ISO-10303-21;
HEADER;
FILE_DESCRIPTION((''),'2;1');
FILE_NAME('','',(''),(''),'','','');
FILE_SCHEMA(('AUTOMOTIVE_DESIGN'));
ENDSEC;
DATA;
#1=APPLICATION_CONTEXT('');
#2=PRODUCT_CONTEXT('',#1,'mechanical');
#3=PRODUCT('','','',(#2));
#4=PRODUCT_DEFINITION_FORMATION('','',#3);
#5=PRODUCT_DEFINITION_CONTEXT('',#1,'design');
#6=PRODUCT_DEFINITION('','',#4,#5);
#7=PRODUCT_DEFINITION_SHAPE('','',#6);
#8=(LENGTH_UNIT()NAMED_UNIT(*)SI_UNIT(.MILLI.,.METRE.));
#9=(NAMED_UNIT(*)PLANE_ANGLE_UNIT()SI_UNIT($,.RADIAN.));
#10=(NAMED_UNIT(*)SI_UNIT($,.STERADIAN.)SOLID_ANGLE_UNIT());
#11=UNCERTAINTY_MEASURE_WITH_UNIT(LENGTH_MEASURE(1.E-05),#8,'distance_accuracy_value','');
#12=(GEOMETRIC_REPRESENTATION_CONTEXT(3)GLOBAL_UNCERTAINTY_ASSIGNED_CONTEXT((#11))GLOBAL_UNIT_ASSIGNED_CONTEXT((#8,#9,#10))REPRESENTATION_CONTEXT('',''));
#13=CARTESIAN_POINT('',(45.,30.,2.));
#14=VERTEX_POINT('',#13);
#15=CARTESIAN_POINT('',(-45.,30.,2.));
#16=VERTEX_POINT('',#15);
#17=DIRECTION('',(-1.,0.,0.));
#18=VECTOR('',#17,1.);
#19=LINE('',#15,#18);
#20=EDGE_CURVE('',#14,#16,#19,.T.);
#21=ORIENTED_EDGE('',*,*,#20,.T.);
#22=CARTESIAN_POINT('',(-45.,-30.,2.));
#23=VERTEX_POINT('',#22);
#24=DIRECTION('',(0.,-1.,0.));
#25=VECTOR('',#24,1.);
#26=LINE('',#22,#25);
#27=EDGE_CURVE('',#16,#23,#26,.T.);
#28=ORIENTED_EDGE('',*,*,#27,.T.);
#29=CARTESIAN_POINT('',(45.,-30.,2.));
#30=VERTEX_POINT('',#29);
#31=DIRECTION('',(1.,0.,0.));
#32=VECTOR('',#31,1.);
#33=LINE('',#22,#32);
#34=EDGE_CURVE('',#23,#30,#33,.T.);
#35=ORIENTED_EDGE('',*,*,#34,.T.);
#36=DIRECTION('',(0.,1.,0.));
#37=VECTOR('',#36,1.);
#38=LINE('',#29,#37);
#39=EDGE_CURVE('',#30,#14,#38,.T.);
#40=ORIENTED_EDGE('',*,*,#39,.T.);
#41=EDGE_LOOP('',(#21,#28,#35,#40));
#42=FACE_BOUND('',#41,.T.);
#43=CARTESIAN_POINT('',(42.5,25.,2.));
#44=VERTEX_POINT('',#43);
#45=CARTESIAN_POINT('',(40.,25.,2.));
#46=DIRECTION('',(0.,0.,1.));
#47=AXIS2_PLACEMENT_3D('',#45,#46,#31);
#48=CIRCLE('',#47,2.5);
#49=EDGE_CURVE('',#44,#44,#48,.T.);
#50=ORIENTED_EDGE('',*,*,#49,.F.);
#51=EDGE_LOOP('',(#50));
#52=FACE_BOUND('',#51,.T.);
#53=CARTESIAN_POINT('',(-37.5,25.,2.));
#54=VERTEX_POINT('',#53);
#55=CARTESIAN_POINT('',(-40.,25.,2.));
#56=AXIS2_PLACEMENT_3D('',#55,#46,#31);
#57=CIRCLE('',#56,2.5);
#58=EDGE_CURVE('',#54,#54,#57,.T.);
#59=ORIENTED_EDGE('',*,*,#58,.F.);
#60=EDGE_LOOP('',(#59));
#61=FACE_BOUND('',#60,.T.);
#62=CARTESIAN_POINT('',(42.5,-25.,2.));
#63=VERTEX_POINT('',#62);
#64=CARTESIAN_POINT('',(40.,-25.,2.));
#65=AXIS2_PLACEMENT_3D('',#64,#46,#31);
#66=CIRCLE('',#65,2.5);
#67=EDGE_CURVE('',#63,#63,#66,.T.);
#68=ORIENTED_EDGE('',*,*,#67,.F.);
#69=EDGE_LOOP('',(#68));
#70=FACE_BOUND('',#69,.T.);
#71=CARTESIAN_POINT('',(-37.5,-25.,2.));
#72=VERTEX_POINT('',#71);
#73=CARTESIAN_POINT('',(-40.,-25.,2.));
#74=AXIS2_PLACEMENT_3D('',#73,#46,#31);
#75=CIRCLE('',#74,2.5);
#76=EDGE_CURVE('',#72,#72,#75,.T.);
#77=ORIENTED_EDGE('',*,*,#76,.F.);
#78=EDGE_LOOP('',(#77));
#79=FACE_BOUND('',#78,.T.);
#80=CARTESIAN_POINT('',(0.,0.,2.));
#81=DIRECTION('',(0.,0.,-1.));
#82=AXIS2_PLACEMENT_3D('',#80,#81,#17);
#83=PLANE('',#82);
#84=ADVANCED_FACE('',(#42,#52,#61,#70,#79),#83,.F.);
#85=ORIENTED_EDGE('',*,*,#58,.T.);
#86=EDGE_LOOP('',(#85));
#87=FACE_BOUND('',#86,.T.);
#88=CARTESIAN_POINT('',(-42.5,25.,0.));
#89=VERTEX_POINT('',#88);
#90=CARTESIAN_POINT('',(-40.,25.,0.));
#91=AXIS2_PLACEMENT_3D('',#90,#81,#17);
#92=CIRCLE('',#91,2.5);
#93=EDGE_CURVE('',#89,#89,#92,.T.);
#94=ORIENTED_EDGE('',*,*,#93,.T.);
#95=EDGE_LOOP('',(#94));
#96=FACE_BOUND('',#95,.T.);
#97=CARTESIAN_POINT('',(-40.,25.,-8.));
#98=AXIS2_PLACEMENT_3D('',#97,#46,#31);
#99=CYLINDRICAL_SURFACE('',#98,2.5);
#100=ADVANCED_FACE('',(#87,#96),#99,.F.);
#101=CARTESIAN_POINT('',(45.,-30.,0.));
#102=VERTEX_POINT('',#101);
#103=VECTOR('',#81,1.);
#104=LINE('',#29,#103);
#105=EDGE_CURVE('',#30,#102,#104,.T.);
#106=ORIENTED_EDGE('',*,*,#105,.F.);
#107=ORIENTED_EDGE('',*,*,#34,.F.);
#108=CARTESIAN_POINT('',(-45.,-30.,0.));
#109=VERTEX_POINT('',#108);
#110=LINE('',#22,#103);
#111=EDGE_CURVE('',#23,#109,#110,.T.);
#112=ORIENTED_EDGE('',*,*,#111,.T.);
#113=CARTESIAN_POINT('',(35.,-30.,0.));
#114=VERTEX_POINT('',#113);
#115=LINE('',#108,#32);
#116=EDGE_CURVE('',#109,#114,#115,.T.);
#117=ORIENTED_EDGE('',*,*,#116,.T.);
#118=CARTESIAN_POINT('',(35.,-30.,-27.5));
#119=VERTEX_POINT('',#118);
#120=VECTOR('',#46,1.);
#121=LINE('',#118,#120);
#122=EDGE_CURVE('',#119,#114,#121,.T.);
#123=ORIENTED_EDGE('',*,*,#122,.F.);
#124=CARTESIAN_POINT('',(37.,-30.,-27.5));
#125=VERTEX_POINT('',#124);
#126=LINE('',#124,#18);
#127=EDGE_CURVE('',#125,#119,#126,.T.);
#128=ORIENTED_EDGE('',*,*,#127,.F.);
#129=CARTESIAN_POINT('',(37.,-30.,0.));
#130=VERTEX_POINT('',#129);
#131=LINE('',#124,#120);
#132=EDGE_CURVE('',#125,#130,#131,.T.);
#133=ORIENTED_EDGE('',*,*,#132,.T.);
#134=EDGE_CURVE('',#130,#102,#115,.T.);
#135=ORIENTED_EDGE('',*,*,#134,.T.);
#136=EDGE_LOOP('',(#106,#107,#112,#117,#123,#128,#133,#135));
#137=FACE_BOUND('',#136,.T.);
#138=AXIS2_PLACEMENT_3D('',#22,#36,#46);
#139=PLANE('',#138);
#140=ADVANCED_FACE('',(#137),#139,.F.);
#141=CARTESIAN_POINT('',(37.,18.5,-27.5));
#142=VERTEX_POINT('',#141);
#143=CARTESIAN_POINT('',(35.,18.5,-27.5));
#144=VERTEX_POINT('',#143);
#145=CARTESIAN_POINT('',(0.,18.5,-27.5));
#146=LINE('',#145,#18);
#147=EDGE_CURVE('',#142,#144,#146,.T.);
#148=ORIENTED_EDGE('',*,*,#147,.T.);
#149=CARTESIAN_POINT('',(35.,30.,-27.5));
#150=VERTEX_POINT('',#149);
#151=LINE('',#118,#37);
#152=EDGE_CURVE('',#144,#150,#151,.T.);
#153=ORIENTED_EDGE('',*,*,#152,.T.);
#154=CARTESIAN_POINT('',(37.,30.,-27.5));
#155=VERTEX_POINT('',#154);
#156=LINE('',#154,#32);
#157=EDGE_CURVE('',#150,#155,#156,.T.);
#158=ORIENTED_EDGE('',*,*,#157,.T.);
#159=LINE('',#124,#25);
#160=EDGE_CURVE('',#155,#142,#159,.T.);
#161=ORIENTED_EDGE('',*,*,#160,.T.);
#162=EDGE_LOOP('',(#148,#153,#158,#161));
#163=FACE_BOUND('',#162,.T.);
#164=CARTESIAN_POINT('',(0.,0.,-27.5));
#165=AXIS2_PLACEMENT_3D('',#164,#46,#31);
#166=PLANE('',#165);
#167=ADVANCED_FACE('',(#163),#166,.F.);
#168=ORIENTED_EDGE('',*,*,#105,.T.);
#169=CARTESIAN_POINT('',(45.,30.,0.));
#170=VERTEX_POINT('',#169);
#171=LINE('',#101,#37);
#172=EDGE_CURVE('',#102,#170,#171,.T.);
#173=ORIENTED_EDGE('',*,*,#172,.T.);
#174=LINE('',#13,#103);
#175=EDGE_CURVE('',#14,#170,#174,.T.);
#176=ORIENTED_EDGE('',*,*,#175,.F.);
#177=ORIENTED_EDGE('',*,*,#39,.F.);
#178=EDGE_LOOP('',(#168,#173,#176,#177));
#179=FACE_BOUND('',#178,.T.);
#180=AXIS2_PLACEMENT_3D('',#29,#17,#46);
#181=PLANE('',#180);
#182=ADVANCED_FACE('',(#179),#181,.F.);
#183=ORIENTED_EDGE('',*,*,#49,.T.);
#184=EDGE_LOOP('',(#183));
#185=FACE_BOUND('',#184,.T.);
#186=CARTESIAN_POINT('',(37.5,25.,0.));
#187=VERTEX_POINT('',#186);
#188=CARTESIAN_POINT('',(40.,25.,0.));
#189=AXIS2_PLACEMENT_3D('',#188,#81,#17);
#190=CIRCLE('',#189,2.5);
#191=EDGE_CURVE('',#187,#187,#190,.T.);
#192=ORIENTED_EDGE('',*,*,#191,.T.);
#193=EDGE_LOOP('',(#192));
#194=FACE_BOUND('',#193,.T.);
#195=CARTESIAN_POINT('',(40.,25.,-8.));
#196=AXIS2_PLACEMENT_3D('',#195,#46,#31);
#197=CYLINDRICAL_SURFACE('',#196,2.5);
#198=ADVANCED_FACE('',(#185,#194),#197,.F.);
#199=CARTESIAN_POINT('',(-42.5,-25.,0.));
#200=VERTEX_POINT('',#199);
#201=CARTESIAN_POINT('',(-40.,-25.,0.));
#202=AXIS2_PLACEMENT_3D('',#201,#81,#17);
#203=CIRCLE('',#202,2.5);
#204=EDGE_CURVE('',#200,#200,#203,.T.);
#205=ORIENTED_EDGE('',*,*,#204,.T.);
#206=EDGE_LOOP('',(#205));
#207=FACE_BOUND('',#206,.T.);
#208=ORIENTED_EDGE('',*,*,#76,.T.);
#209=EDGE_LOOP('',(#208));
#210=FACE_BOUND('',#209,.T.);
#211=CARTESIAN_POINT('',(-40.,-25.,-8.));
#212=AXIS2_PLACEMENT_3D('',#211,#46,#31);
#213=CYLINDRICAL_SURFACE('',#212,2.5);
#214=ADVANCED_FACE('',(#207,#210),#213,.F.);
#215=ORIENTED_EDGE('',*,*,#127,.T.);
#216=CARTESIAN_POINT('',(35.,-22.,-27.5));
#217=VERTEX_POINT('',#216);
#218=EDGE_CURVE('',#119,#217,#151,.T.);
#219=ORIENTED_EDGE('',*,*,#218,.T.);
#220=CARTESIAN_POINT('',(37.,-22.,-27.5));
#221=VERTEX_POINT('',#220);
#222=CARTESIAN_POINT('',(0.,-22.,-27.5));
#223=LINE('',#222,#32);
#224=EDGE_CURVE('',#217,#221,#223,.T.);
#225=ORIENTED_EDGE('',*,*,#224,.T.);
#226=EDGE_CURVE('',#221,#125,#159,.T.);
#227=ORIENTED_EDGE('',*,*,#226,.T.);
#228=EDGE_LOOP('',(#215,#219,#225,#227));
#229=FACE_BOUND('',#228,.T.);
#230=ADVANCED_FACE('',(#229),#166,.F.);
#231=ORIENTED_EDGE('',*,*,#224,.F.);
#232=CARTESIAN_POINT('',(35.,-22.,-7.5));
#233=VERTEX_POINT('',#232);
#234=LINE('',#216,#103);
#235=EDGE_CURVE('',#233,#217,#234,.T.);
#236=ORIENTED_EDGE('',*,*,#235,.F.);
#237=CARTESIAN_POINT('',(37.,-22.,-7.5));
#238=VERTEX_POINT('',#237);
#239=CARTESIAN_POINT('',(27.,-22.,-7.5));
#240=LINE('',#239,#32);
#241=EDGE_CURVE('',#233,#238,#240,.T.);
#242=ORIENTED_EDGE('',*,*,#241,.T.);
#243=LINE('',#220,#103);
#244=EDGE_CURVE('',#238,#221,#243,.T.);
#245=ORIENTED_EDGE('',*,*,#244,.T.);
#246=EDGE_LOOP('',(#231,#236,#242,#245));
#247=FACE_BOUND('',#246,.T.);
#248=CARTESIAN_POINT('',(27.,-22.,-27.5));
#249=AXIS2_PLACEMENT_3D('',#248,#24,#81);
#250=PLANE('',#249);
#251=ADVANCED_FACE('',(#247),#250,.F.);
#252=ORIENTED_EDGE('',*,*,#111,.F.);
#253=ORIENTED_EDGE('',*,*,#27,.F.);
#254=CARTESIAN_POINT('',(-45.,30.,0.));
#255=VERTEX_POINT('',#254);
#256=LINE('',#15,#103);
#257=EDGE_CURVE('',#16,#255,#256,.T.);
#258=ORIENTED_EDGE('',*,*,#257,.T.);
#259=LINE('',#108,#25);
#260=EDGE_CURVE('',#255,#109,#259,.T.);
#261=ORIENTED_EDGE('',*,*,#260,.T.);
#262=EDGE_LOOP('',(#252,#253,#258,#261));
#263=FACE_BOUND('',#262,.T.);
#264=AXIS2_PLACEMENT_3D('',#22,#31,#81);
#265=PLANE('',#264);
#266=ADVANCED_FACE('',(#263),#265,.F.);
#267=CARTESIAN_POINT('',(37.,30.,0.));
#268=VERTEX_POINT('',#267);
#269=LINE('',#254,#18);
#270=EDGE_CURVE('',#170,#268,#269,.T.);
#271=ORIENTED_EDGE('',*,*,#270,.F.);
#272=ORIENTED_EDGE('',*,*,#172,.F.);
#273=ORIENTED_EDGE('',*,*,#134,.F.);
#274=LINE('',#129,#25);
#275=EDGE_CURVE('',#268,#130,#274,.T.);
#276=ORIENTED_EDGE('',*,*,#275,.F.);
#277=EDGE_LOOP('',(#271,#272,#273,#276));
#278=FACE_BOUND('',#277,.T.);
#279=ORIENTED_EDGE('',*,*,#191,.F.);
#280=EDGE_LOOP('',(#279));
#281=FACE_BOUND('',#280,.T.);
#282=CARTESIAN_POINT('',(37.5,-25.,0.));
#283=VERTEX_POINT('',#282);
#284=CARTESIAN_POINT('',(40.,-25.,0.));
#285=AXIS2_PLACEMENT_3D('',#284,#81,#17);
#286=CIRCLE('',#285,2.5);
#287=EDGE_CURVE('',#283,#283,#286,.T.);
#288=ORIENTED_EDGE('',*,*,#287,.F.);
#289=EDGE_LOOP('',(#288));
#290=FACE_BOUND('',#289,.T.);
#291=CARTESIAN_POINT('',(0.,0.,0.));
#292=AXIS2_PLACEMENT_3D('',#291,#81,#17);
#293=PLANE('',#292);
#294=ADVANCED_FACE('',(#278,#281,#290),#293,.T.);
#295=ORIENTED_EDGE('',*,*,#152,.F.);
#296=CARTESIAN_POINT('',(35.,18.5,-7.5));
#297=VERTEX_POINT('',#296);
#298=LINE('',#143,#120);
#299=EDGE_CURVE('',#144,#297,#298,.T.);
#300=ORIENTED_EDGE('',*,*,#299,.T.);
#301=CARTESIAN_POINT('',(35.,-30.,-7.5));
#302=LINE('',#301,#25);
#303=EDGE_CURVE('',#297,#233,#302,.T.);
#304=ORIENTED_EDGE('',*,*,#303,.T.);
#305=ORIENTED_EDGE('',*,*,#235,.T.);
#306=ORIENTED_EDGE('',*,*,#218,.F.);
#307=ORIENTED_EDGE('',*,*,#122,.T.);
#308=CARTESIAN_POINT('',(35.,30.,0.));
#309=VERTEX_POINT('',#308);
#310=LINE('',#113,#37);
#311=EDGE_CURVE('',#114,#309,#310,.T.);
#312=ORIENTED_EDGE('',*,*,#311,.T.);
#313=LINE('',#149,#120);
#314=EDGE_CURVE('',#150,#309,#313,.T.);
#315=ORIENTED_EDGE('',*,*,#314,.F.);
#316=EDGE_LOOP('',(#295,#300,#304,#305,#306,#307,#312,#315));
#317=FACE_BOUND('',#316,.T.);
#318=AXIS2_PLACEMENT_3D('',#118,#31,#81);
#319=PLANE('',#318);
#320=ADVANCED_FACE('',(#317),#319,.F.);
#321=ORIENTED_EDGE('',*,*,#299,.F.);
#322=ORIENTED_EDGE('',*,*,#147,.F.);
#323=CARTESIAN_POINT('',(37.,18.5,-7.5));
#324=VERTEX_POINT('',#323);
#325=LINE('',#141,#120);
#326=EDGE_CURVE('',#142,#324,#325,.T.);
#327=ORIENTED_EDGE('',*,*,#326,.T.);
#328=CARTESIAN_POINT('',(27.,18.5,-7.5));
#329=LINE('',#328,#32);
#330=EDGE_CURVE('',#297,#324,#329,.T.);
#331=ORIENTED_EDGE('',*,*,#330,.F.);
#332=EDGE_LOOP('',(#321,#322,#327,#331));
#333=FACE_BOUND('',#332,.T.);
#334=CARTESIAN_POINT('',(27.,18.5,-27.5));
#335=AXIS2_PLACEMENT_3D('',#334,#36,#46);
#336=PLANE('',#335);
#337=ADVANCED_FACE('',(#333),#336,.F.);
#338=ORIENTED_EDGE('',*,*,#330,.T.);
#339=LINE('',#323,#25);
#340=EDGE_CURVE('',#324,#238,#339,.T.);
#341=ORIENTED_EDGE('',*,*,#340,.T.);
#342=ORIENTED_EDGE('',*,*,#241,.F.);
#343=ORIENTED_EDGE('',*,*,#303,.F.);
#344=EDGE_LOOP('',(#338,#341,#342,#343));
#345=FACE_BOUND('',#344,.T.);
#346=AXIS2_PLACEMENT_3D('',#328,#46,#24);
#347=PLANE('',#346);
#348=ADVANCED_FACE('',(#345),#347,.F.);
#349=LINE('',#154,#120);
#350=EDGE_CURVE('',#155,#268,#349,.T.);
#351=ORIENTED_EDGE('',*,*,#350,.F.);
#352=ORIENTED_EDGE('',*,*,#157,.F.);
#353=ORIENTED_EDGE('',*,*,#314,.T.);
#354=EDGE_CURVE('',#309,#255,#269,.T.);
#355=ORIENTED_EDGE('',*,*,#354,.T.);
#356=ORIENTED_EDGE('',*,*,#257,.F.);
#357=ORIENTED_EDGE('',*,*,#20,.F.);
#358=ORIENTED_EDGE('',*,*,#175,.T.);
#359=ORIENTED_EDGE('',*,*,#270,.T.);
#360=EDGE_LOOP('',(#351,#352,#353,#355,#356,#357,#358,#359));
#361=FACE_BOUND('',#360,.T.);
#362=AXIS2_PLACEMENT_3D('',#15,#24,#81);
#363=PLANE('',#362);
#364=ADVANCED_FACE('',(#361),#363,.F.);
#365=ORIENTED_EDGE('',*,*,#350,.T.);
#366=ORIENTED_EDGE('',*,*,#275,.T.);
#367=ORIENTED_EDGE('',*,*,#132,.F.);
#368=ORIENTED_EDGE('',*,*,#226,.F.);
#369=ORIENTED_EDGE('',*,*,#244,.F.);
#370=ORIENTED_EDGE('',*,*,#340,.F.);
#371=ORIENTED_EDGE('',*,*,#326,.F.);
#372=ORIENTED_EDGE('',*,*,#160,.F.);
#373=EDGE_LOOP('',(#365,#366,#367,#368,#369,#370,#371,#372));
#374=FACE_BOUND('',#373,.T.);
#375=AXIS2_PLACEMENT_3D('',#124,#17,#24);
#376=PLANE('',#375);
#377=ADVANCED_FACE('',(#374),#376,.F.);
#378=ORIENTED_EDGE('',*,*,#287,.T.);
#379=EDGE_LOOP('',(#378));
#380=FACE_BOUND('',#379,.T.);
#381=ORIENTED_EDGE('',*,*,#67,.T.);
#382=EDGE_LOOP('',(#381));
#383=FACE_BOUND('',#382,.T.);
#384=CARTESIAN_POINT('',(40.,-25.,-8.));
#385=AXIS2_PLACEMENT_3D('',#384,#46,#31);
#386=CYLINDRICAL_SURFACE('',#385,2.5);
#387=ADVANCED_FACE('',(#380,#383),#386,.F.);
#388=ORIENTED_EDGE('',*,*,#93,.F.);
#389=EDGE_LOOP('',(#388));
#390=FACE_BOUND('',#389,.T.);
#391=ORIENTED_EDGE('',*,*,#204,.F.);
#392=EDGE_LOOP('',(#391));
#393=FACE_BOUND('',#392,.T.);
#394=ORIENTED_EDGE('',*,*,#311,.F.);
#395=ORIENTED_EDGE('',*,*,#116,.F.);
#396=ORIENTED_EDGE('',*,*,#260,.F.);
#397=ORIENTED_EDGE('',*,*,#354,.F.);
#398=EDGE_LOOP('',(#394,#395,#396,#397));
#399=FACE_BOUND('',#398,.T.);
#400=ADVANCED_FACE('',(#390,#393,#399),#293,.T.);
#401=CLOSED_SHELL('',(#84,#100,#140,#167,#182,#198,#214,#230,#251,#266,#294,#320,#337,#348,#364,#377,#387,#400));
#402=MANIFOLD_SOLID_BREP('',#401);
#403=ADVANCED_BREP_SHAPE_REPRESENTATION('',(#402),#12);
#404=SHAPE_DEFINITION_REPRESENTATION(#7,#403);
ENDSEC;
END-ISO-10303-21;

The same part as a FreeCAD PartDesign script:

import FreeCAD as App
import Part
import Sketcher

V = App.Vector
Q = App.Units.Quantity

doc = App.newDocument("Part")
params = doc.addObject("Spreadsheet::Sheet", "Params")
for row, (alias, value) in enumerate([
    ("sketch1_width", "90 mm"),
    ("sketch1_height", "60 mm"),
    ("pad1_length", "2 mm"),
    ("sketch2_diameter", "5 mm"),
    ("pocket1_length", "10 mm"),
    ("sketch3_width", "2 mm"),
    ("sketch3_height", "60 mm"),
    ("pad2_length", "27.5 mm"),
    ("sketch4_height", "20 mm"),
    ("sketch4_width", "40.5 mm"),
    ("pocket2_length", "10 mm"),
], start=1):
    params.set(f"A{row}", alias)
    params.set(f"B{row}", "=" + value)
    params.setAlias(f"B{row}", alias)

body = doc.addObject("PartDesign::Body", "Body")

sketch1 = body.newObject("Sketcher::SketchObject", "Sketch")
sketch1.AttachmentSupport = (doc.getObject("XY_Plane"), [""])
sketch1.MapMode = "FlatFace"
sketch1.addGeometry([
    Part.LineSegment(V(-45, 30, 0), V(-45, -30, 0)),
    Part.LineSegment(V(-45, -30, 0), V(45, -30, 0)),
    Part.LineSegment(V(45, -30, 0), V(45, 30, 0)),
    Part.LineSegment(V(45, 30, 0), V(-45, 30, 0)),
], False)
sketch1.addConstraint([
    Sketcher.Constraint("Coincident", 0, 2, 1, 1),
    Sketcher.Constraint("Coincident", 1, 2, 2, 1),
    Sketcher.Constraint("Coincident", 2, 2, 3, 1),
    Sketcher.Constraint("Coincident", 3, 2, 0, 1),
    Sketcher.Constraint("Vertical", 0),
    Sketcher.Constraint("Horizontal", 1),
    Sketcher.Constraint("Vertical", 2),
    Sketcher.Constraint("Horizontal", 3),
    Sketcher.Constraint("Symmetric", 0, 2, 2, 2, -1, 1),
    Sketcher.Constraint("DistanceX", 1, 1, 1, 2, Q("90 mm")),
    Sketcher.Constraint("DistanceY", 0, 2, 0, 1, Q("60 mm")),
])
sketch1.setExpression("Constraints[9]", "Params.sketch1_width")
sketch1.setExpression("Constraints[10]", "Params.sketch1_height")
pad1 = body.newObject("PartDesign::Pad", "Pad")
pad1.Profile = sketch1
pad1.setExpression("Length", "Params.pad1_length")

sketch2 = body.newObject("Sketcher::SketchObject", "Sketch001")
sketch2.AttachmentSupport = (doc.getObject("XY_Plane"), [""])
sketch2.MapMode = "FlatFace"
sketch2.AttachmentOffset = App.Placement(V(0, 0, 2), App.Rotation())
sketch2.addGeometry([
    Part.Circle(V(-40, -25, 0), V(0, 0, 1), 2.5),
    Part.Circle(V(-40, 25, 0), V(0, 0, 1), 2.5),
    Part.Circle(V(40, 25, 0), V(0, 0, 1), 2.5),
    Part.Circle(V(40, -25, 0), V(0, 0, 1), 2.5),
], False)
sketch2.addConstraint([
    Sketcher.Constraint("Equal", 0, 1),
    Sketcher.Constraint("Equal", 1, 2),
    Sketcher.Constraint("Equal", 2, 3),
    Sketcher.Constraint("Symmetric", 0, 3, 2, 3, -1, 1),
    Sketcher.Constraint("Symmetric", 1, 3, 3, 3, -1, 1),
    Sketcher.Constraint("Symmetric", 1, 3, 2, 3, -2),
    Sketcher.Constraint("Diameter", 0, Q("5 mm")),
    Sketcher.Constraint("DistanceX", 0, 3, -1, 1, Q("40 mm")),
    Sketcher.Constraint("DistanceY", 0, 3, -1, 1, Q("25 mm")),
])
sketch2.setExpression("Constraints[6]", "Params.sketch2_diameter")
pocket1 = body.newObject("PartDesign::Pocket", "Pocket")
pocket1.Profile = sketch2
pocket1.setExpression("Length", "Params.pocket1_length")

sketch3 = body.newObject("Sketcher::SketchObject", "Sketch002")
sketch3.AttachmentSupport = (doc.getObject("XY_Plane"), [""])
sketch3.MapMode = "FlatFace"
sketch3.addGeometry([
    Part.LineSegment(V(37, 30, 0), V(37, -30, 0)),
    Part.LineSegment(V(37, -30, 0), V(35, -30, 0)),
    Part.LineSegment(V(35, -30, 0), V(35, 30, 0)),
    Part.LineSegment(V(35, 30, 0), V(37, 30, 0)),
], False)
sketch3.addConstraint([
    Sketcher.Constraint("Coincident", 0, 2, 1, 1),
    Sketcher.Constraint("Coincident", 1, 2, 2, 1),
    Sketcher.Constraint("Coincident", 2, 2, 3, 1),
    Sketcher.Constraint("Coincident", 3, 2, 0, 1),
    Sketcher.Constraint("Vertical", 0),
    Sketcher.Constraint("Horizontal", 1),
    Sketcher.Constraint("Vertical", 2),
    Sketcher.Constraint("Horizontal", 3),
    Sketcher.Constraint("DistanceX", 1, 2, 1, 1, Q("2 mm")),
    Sketcher.Constraint("DistanceY", 0, 2, 0, 1, Q("60 mm")),
    Sketcher.Constraint("DistanceX", -1, 1, 0, 2, Q("37 mm")),
    Sketcher.Constraint("DistanceY", 0, 2, -1, 1, Q("30 mm")),
])
sketch3.setExpression("Constraints[8]", "Params.sketch3_width")
sketch3.setExpression("Constraints[9]", "Params.sketch3_height")
pad2 = body.newObject("PartDesign::Pad", "Pad001")
pad2.Profile = sketch3
pad2.setExpression("Length", "Params.pad2_length")
pad2.Reversed = True

sketch4 = body.newObject("Sketcher::SketchObject", "Sketch003")
sketch4.AttachmentSupport = (doc.getObject("YZ_Plane"), [""])
sketch4.MapMode = "FlatFace"
sketch4.AttachmentOffset = App.Placement(V(0, 0, 37), App.Rotation())
sketch4.addGeometry([
    Part.LineSegment(V(18, -8, 0), V(-22, -8, 0)),
    Part.LineSegment(V(-22, -8, 0), V(-22, -28, 0)),
    Part.LineSegment(V(-22, -28, 0), V(18, -28, 0)),
    Part.LineSegment(V(18, -28, 0), V(18, -8, 0)),
], False)
sketch4.addConstraint([
    Sketcher.Constraint("Coincident", 0, 2, 1, 1),
    Sketcher.Constraint("Coincident", 1, 2, 2, 1),
    Sketcher.Constraint("Coincident", 2, 2, 3, 1),
    Sketcher.Constraint("Coincident", 3, 2, 0, 1),
    Sketcher.Constraint("Horizontal", 0),
    Sketcher.Constraint("Vertical", 1),
    Sketcher.Constraint("Horizontal", 2),
    Sketcher.Constraint("Vertical", 3),
    Sketcher.Constraint("DistanceY", 1, 2, 1, 1, Q("20 mm")),
    Sketcher.Constraint("DistanceX", 0, 2, 0, 1, Q("40.5 mm")),
    Sketcher.Constraint("DistanceX", 0, 2, -1, 1, Q("22 mm")),
    Sketcher.Constraint("DistanceY", 0, 2, -1, 1, Q("7.5 mm")),
])
sketch4.setExpression("Constraints[8]", "Params.sketch4_height")
sketch4.setExpression("Constraints[9]", "Params.sketch4_width")
pocket2 = body.newObject("PartDesign::Pocket", "Pocket001")
pocket2.Profile = sketch4
pocket2.setExpression("Length", "Params.pocket2_length")

doc.recompute()
